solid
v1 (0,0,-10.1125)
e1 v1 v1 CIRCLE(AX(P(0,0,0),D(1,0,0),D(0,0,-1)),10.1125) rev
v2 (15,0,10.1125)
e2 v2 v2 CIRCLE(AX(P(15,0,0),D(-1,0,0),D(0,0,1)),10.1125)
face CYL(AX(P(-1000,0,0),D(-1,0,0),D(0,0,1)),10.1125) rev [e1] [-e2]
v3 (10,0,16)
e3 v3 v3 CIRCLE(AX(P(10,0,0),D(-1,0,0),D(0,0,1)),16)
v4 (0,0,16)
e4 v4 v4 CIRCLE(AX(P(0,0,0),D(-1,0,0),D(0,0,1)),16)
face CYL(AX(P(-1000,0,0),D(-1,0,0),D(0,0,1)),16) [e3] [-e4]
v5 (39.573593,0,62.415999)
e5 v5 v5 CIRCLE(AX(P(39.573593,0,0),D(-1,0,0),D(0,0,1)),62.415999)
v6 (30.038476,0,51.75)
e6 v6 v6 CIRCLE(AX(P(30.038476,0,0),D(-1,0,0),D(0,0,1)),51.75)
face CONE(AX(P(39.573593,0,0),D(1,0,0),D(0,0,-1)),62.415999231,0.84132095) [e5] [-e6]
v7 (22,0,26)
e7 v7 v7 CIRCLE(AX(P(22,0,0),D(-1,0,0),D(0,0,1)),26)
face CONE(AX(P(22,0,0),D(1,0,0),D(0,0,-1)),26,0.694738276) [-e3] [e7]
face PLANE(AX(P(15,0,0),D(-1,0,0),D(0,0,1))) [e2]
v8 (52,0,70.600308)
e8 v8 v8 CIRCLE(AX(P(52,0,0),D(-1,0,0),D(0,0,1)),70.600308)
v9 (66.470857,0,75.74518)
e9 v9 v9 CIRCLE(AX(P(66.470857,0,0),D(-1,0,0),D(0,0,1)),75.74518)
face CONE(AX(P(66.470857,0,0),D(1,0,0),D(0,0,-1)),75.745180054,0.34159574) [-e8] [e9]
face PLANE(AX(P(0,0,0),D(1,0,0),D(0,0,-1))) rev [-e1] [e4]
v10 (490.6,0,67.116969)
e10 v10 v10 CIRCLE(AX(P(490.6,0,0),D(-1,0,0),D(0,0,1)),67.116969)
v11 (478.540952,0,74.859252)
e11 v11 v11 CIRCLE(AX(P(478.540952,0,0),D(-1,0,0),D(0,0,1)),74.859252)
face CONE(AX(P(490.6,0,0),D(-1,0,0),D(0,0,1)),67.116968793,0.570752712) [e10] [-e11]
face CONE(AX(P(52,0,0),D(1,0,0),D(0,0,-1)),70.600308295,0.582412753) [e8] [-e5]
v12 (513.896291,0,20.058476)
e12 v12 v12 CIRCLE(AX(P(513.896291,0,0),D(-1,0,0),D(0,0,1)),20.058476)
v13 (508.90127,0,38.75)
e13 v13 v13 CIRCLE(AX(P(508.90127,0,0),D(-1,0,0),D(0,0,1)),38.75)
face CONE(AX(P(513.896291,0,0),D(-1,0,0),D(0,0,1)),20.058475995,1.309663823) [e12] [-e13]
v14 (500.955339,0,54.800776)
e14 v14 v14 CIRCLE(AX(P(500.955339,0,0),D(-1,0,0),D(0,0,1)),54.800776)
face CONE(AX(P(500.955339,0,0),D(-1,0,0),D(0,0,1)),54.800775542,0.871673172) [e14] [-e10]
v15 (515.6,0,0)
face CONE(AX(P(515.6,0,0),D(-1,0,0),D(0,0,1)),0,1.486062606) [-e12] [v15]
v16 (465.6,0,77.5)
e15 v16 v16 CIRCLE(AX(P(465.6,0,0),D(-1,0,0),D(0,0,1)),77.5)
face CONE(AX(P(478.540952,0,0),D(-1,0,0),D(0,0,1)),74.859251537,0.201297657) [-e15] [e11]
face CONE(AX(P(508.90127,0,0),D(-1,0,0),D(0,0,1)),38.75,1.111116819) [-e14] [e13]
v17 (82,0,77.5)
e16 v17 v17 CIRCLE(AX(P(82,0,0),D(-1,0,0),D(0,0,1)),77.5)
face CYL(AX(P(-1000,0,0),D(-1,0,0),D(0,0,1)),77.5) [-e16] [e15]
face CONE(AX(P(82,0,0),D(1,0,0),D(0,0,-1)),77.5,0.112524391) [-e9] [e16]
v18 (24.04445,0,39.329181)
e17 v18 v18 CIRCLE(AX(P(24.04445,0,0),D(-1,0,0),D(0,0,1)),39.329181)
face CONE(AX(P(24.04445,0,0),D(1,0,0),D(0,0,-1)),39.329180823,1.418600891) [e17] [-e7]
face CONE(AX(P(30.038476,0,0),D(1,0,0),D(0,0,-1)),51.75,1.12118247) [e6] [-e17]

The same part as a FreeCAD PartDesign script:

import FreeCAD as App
import Part
import Sketcher
from FreeCAD import Vector


def add_polygon(sketch, points):
    """Adds a closed chain of lines whose ends are joined by coincident constraints."""
    first, n = sketch.GeometryCount, len(points)
    for a, b in zip(points, points[1:] + points[:1]):
        sketch.addGeometry(Part.LineSegment(App.Vector(*a, 0), App.Vector(*b, 0)), False)
    for i in range(n):
        sketch.addConstraint(Sketcher.Constraint("Coincident", first + i, 2, first + (i + 1) % n, 1))

doc = App.newDocument("Part")
body = doc.addObject("PartDesign::Body", "Body")

sketch1 = body.newObject("Sketcher::SketchObject", "Sketch")
sketch1.AttachmentSupport = (doc.getObject("XY_Plane"), [""])
sketch1.MapMode = "FlatFace"
add_polygon(sketch1, [(0, 16), (0, 0), (516, 0), (514, 20), (509, 39), (501, 55), (491, 67), (479, 75), (466, 78), (82, 78), (66, 76), (52, 71), (40, 62), (30, 52), (24, 39), (22, 26), (10, 16)])
sketch1.addConstraint(Sketcher.Constraint("Vertical", 0))
sketch1.addConstraint(Sketcher.Constraint("Horizontal", 1))
sketch1.addConstraint(Sketcher.Constraint("Horizontal", 8))
sketch1.addConstraint(Sketcher.Constraint("Horizontal", 16))
sketch1.addConstraint(Sketcher.Constraint("Coincident", 0, 2, -1, 1))
sketch1.addConstraint(Sketcher.Constraint("DistanceX", 16, 2, 16, 1, 10.0))
sketch1.addConstraint(Sketcher.Constraint("DistanceY", 0, 2, 0, 1, 16.0))
sketch1.addConstraint(Sketcher.Constraint("DistanceX", 1, 1, 1, 2, 515.6))
sketch1.addConstraint(Sketcher.Constraint("DistanceX", 8, 2, 8, 1, 383.6))
sketch1.addConstraint(Sketcher.Constraint("DistanceX", -1, 1, 8, 2, 82.0))
sketch1.addConstraint(Sketcher.Constraint("DistanceX", -1, 1, 10, 2, 52.0))
sketch1.addConstraint(Sketcher.Constraint("DistanceX", -1, 1, 14, 2, 22.0))
sketch1.addConstraint(Sketcher.Constraint("DistanceY", -1, 1, 14, 2, 26.0))
sketch1.addConstraint(Sketcher.Constraint("DistanceX", 5, 2, 1, 2, 25.0))
sketch1.addConstraint(Sketcher.Constraint("DistanceY", -1, 1, 7, 2, 77.5))
sketch1.addConstraint(Sketcher.Constraint("DistanceY", -1, 1, 3, 2, 38.75))
sketch1.addConstraint(Sketcher.Constraint("DistanceY", -1, 1, 12, 2, 51.75))
sketch1.addConstraint(Sketcher.Constraint("DistanceY", -1, 1, 11, 2, 62.415999))
sketch1.addConstraint(Sketcher.Constraint("DistanceY", 13, 2, 9, 2, 36.415999))
sketch1.addConstraint(Sketcher.Constraint("Distance", 2, 20.1307))
sketch1.addConstraint(Sketcher.Constraint("DistanceY", 2, 2, 4, 2, 34.7423))
sketch1.addConstraint(Sketcher.Constraint("Distance", 4, 17.90992))
sketch1.addConstraint(Sketcher.Constraint("Distance", 7, 13.207642))
sketch1.addConstraint(Sketcher.Constraint("Distance", 12, 14.306712))
sketch1.addConstraint(Sketcher.Constraint("Distance", 14, 13.48506))
sketch1.addConstraint(Sketcher.Constraint("DistanceX", -1, 1, 2, 2, 513.896291))
sketch1.addConstraint(Sketcher.Constraint("DistanceX", -1, 1, 3, 2, 508.90127))
sketch1.addConstraint(Sketcher.Constraint("DistanceY", -1, 1, 5, 2, 67.116969))
sketch1.addConstraint(Sketcher.Constraint("DistanceY", -1, 1, 6, 2, 74.859252))
sketch1.addConstraint(Sketcher.Constraint("DistanceY", -1, 1, 9, 2, 75.74518))
sketch1.addConstraint(Sketcher.Constraint("DistanceY", -1, 1, 10, 2, 70.600308))
sketch1.addConstraint(Sketcher.Constraint("DistanceX", 12, 2, 9, 2, 36.432382))
sketch1.addConstraint(Sketcher.Constraint("Distance", 9, 15.627977))
revolution = body.newObject("PartDesign::Revolution", "Revolution")
revolution.Profile = sketch1
revolution.ReferenceAxis = (sketch1, ["H_Axis"])
revolution.Angle = 360

sketch2 = body.newObject("Sketcher::SketchObject", "Sketch001")
sketch2.AttachmentSupport = (doc.getObject("XY_Plane"), [""])
sketch2.MapMode = "FlatFace"
add_polygon(sketch2, [(-1, 10), (-1, 0), (15, 0), (15, 10)])
sketch2.addConstraint(Sketcher.Constraint("Vertical", 0))
sketch2.addConstraint(Sketcher.Constraint("Horizontal", 1))
sketch2.addConstraint(Sketcher.Constraint("Vertical", 2))
sketch2.addConstraint(Sketcher.Constraint("Horizontal", 3))
sketch2.addConstraint(Sketcher.Constraint("PointOnObject", 0, 2, -1))
sketch2.addConstraint(Sketcher.Constraint("DistanceX", 1, 1, 1, 2, 16.0))
sketch2.addConstraint(Sketcher.Constraint("DistanceX", 0, 2, -1, 1, 1.0))
sketch2.addConstraint(Sketcher.Constraint("DistanceY", 0, 2, 0, 1, 10.1125))
groove = body.newObject("PartDesign::Groove", "Groove")
groove.Profile = sketch2
groove.ReferenceAxis = (sketch2, ["H_Axis"])
groove.Angle = 360

doc.recompute()
